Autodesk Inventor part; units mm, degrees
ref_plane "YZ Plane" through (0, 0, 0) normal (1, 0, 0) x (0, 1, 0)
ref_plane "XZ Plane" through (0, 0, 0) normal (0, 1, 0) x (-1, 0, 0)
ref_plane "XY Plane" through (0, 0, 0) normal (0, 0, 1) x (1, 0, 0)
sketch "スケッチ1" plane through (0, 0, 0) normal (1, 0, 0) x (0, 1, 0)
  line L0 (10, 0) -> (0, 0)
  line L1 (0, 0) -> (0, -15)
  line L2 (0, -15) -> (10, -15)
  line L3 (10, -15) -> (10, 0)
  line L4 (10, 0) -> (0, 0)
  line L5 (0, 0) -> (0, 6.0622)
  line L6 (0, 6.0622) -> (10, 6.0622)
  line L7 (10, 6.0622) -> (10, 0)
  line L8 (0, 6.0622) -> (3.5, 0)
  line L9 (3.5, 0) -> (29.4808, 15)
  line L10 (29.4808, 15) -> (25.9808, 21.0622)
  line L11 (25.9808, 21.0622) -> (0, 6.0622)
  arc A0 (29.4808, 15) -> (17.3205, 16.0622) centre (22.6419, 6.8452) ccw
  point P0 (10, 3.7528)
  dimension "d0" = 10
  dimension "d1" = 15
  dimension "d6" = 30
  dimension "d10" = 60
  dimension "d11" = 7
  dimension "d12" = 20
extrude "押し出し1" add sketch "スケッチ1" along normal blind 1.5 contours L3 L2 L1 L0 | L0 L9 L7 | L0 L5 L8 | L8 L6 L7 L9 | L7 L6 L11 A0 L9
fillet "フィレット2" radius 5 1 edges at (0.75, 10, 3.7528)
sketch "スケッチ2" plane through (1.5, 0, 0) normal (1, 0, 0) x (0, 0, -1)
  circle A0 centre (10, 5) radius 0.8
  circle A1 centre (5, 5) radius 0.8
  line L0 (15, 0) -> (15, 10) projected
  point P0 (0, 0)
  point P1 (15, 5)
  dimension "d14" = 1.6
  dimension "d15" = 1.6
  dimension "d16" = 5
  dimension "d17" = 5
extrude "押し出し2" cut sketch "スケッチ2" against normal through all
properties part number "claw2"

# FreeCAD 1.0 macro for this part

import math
import FreeCAD as App
import Part
import Sketcher

V = App.Vector
Q = App.Units.Quantity


def edges_at(feature, points):
    """Names of the edges that pass closest to the given points."""
    edges = feature.Shape.Edges
    near = lambda p: min(range(len(edges)), key=lambda i: edges[i].distToShape(Part.Vertex(*p))[0])
    return sorted({f"Edge{near(p) + 1}" for p in points})

doc = App.newDocument("Part")
body = doc.addObject("PartDesign::Body", "Body")

sketch1 = body.newObject("Sketcher::SketchObject", "Sketch")
sketch1.AttachmentSupport = (doc.getObject("YZ_Plane"), [""])
sketch1.MapMode = "FlatFace"
sketch1.addGeometry([
    Part.LineSegment(V(10, -15, 0), V(10, 4, 0)),
    Part.LineSegment(V(10, 4, 0), V(29, 15, 0)),
    Part.ArcOfCircle(Part.Circle(V(23, 7, 0), V(0, 0, 1), 11), math.radians(50), math.radians(120)),
    Part.LineSegment(V(17, 16, 0), V(0, 6, 0)),
    Part.LineSegment(V(0, 6, 0), V(0, -15, 0)),
    Part.LineSegment(V(0, -15, 0), V(10, -15, 0)),
], False)
sketch1.addConstraint([
    Sketcher.Constraint("Coincident", 0, 2, 1, 1),
    Sketcher.Constraint("Coincident", 1, 2, 2, 1),
    Sketcher.Constraint("Tangent", 2, 2, 3, 1),
    Sketcher.Constraint("Coincident", 3, 2, 4, 1),
    Sketcher.Constraint("Coincident", 4, 2, 5, 1),
    Sketcher.Constraint("Coincident", 5, 2, 0, 1),
    Sketcher.Constraint("Vertical", 0),
    Sketcher.Constraint("Vertical", 4),
    Sketcher.Constraint("Horizontal", 5),
    Sketcher.Constraint("PointOnObject", 3, 2, -2),
    Sketcher.Constraint("Parallel", 1, 3),
    Sketcher.Constraint("DistanceX", 5, 1, 5, 2, 10.0),
    Sketcher.Constraint("Angle", 1, Q("30 deg")),
    Sketcher.Constraint("Distance", 3, 20.0),
    Sketcher.Constraint("DistanceY", -1, 1, 1, 2, 15.0),
    Sketcher.Constraint("DistanceY", 4, 2, -1, 1, 15.0),
    Sketcher.Constraint("Radius", 2, 10.643),
    Sketcher.Constraint("DistanceY", 0, 1, 0, 2, 18.7528),
])
pad1 = body.newObject("PartDesign::Pad", "Pad")
pad1.Profile = sketch1
pad1.Length = 1.5
doc.recompute()

fillet = body.newObject("PartDesign::Fillet", "Fillet")
fillet.Base = (pad1, edges_at(pad1, [(0.75, 10, 3.753)]))
fillet.Radius = 5

sketch2 = body.newObject("Sketcher::SketchObject", "Sketch001")
sketch2.AttachmentSupport = (doc.getObject("YZ_Plane"), [""])
sketch2.MapMode = "FlatFace"
sketch2.AttachmentOffset = App.Placement(V(0, 0, 1.5), App.Rotation())
sketch2.addGeometry([
    Part.Circle(V(5, -10, 0), V(0, 0, 1), 0.8),
    Part.Circle(V(5, -5, 0), V(0, 0, 1), 0.8),
], False)
sketch2.addConstraint([
    Sketcher.Constraint("Equal", 0, 1),
    Sketcher.Constraint("Vertical", 0, 3, 1, 3),
    Sketcher.Constraint("Diameter", 0, 1.6),
    Sketcher.Constraint("DistanceX", -1, 1, 0, 3, 5.0),
    Sketcher.Constraint("DistanceY", 1, 3, -1, 1, 5.0),
    Sketcher.Constraint("DistanceY", 0, 3, 1, 3, 5.0),
])
pocket1 = body.newObject("PartDesign::Pocket", "Pocket")
pocket1.Profile = sketch2
pocket1.Type = "ThroughAll"

doc.recompute()
